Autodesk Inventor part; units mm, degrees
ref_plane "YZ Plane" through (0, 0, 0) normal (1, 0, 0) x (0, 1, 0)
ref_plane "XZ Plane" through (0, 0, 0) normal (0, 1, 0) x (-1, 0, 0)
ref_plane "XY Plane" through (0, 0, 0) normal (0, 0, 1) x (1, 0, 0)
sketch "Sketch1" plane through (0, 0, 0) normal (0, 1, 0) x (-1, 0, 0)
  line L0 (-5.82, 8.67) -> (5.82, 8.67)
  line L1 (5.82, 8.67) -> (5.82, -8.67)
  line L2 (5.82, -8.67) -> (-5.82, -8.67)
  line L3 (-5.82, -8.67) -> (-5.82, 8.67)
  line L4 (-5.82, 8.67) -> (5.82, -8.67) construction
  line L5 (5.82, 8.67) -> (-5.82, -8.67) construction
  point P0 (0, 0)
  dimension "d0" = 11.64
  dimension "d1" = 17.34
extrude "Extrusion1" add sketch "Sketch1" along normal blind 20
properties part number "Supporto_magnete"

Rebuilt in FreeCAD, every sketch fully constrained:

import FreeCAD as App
import Part
import Sketcher


def add_polygon(sketch, points):
    """Adds a closed chain of lines whose ends are joined by coincident constraints."""
    first, n = sketch.GeometryCount, len(points)
    for a, b in zip(points, points[1:] + points[:1]):
        sketch.addGeometry(Part.LineSegment(App.Vector(*a, 0), App.Vector(*b, 0)), False)
    for i in range(n):
        sketch.addConstraint(Sketcher.Constraint("Coincident", first + i, 2, first + (i + 1) % n, 1))

doc = App.newDocument("Part")
body = doc.addObject("PartDesign::Body", "Body")

sketch1 = body.newObject("Sketcher::SketchObject", "Sketch")
sketch1.AttachmentSupport = (doc.getObject("XZ_Plane"), [""])
sketch1.MapMode = "FlatFace"
add_polygon(sketch1, [(-6, 9), (6, 9), (6, -9), (-6, -9)])
sketch1.addConstraint(Sketcher.Constraint("Horizontal", 0))
sketch1.addConstraint(Sketcher.Constraint("Vertical", 1))
sketch1.addConstraint(Sketcher.Constraint("Horizontal", 2))
sketch1.addConstraint(Sketcher.Constraint("Vertical", 3))
sketch1.addConstraint(Sketcher.Constraint("Symmetric", 0, 2, 2, 2, -1, 1))
sketch1.addConstraint(Sketcher.Constraint("DistanceX", 0, 1, 0, 2, 11.64))
sketch1.addConstraint(Sketcher.Constraint("DistanceY", 1, 2, 1, 1, 17.34))
pad1 = body.newObject("PartDesign::Pad", "Pad")
pad1.Profile = sketch1
pad1.Length = 20
pad1.Reversed = True

doc.recompute()
